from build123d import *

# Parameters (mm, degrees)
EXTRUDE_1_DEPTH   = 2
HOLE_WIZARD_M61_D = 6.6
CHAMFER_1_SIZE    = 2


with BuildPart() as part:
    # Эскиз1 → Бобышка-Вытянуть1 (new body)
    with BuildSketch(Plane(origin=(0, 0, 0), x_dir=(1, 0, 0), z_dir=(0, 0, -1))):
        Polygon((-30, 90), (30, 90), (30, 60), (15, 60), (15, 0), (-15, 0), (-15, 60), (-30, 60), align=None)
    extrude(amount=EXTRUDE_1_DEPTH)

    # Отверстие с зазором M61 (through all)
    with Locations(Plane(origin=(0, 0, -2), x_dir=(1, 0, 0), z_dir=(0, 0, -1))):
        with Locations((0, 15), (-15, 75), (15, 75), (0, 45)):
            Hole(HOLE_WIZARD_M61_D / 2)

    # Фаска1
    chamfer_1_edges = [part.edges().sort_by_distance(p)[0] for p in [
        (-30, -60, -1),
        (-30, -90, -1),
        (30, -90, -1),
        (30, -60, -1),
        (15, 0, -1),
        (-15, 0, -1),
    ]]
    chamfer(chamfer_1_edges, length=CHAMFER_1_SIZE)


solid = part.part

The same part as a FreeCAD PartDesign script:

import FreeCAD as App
import Part
import Sketcher
Q = App.Units.Quantity


def edges_at(feature, points):
    """Names of the edges that pass closest to the given points."""
    edges = feature.Shape.Edges
    near = lambda p: min(range(len(edges)), key=lambda i: edges[i].distToShape(Part.Vertex(*p))[0])
    return sorted({f"Edge{near(p) + 1}" for p in points})


def add_polygon(sketch, points):
    """Adds a closed chain of lines whose ends are joined by coincident constraints."""
    first, n = sketch.GeometryCount, len(points)
    for a, b in zip(points, points[1:] + points[:1]):
        sketch.addGeometry(Part.LineSegment(App.Vector(*a, 0), App.Vector(*b, 0)), False)
    for i in range(n):
        sketch.addConstraint(Sketcher.Constraint("Coincident", first + i, 2, first + (i + 1) % n, 1))

doc = App.newDocument("Part")
body = doc.addObject("PartDesign::Body", "Body")

sketch1 = body.newObject("Sketcher::SketchObject", "Sketch")
sketch1.AttachmentSupport = (doc.getObject("XY_Plane"), [""])
sketch1.MapMode = "FlatFace"
add_polygon(sketch1, [(30, -90), (-30, -90), (-30, -60), (-15, -60), (-15, 0), (15, 0), (15, -60), (30, -60)])
sketch1.addConstraint(Sketcher.Constraint("Horizontal", 0))
sketch1.addConstraint(Sketcher.Constraint("Vertical", 1))
sketch1.addConstraint(Sketcher.Constraint("Horizontal", 2))
sketch1.addConstraint(Sketcher.Constraint("Vertical", 3))
sketch1.addConstraint(Sketcher.Constraint("Horizontal", 4))
sketch1.addConstraint(Sketcher.Constraint("Vertical", 5))
sketch1.addConstraint(Sketcher.Constraint("Horizontal", 6))
sketch1.addConstraint(Sketcher.Constraint("Vertical", 7))
sketch1.addConstraint(Sketcher.Constraint("Symmetric", 3, 2, 4, 2, -1, 1))
sketch1.addConstraint(Sketcher.Constraint("Symmetric", 1, 2, 6, 2, -2))
sketch1.addConstraint(Sketcher.Constraint("Equal", 4, 1))
sketch1.addConstraint(Sketcher.Constraint("Equal", 0, 3))
sketch1.addConstraint(Sketcher.Constraint("DistanceX", 0, 2, 0, 1, Q("60 mm")))
sketch1.addConstraint(Sketcher.Constraint("DistanceX", 2, 1, 2, 2, Q("15 mm")))
pad1 = body.newObject("PartDesign::Pad", "Pad")
pad1.Profile = sketch1
pad1.Length = 2
pad1.Reversed = True

sketch2 = body.newObject("Sketcher::SketchObject", "Sketch001")
sketch2.AttachmentSupport = (doc.getObject("XY_Plane"), [""])
sketch2.MapMode = "FlatFace"
sketch2.AttachmentOffset = App.Placement(App.Vector(0, 0, -2), App.Rotation())
sketch2.addGeometry(Part.Circle(App.Vector(0, -15, 0), App.Vector(0, 0, 1), 3.3), False)
sketch2.addGeometry(Part.Circle(App.Vector(-15, -75, 0), App.Vector(0, 0, 1), 3.3), False)
sketch2.addGeometry(Part.Circle(App.Vector(15, -75, 0), App.Vector(0, 0, 1), 3.3), False)
sketch2.addGeometry(Part.Circle(App.Vector(0, -45, 0), App.Vector(0, 0, 1), 3.3), False)
sketch2.addConstraint(Sketcher.Constraint("Equal", 0, 1))
sketch2.addConstraint(Sketcher.Constraint("Equal", 1, 2))
sketch2.addConstraint(Sketcher.Constraint("Equal", 2, 3))
sketch2.addConstraint(Sketcher.Constraint("Symmetric", 1, 3, 2, 3, -2))
sketch2.addConstraint(Sketcher.Constraint("PointOnObject", 0, 3, -2))
sketch2.addConstraint(Sketcher.Constraint("PointOnObject", 3, 3, -2))
sketch2.addConstraint(Sketcher.Constraint("Diameter", 0, Q("6.6 mm")))
sketch2.addConstraint(Sketcher.Constraint("DistanceY", 0, 3, -1, 1, Q("15 mm")))
sketch2.addConstraint(Sketcher.Constraint("DistanceX", 1, 3, -1, 1, Q("15 mm")))
sketch2.addConstraint(Sketcher.Constraint("DistanceY", 1, 3, -1, 1, Q("75 mm")))
sketch2.addConstraint(Sketcher.Constraint("DistanceY", 3, 3, -1, 1, Q("45 mm")))
doc.recompute()
hole = body.newObject("PartDesign::Hole", "Hole")
hole.Profile = sketch2
hole.ThreadType = "None"
hole.Diameter = 6.6
hole.DepthType = "ThroughAll"
hole.Reversed = True
doc.recompute()

chamfer = body.newObject("PartDesign::Chamfer", "Chamfer")
chamfer.Base = (hole, edges_at(hole, [
    (-30, -60, -1),
    (-30, -90, -1),
    (30, -90, -1),
    (30, -60, -1),
    (15, 0, -1),
    (-15, 0, -1),
]))
chamfer.Size = 2

doc.recompute()
